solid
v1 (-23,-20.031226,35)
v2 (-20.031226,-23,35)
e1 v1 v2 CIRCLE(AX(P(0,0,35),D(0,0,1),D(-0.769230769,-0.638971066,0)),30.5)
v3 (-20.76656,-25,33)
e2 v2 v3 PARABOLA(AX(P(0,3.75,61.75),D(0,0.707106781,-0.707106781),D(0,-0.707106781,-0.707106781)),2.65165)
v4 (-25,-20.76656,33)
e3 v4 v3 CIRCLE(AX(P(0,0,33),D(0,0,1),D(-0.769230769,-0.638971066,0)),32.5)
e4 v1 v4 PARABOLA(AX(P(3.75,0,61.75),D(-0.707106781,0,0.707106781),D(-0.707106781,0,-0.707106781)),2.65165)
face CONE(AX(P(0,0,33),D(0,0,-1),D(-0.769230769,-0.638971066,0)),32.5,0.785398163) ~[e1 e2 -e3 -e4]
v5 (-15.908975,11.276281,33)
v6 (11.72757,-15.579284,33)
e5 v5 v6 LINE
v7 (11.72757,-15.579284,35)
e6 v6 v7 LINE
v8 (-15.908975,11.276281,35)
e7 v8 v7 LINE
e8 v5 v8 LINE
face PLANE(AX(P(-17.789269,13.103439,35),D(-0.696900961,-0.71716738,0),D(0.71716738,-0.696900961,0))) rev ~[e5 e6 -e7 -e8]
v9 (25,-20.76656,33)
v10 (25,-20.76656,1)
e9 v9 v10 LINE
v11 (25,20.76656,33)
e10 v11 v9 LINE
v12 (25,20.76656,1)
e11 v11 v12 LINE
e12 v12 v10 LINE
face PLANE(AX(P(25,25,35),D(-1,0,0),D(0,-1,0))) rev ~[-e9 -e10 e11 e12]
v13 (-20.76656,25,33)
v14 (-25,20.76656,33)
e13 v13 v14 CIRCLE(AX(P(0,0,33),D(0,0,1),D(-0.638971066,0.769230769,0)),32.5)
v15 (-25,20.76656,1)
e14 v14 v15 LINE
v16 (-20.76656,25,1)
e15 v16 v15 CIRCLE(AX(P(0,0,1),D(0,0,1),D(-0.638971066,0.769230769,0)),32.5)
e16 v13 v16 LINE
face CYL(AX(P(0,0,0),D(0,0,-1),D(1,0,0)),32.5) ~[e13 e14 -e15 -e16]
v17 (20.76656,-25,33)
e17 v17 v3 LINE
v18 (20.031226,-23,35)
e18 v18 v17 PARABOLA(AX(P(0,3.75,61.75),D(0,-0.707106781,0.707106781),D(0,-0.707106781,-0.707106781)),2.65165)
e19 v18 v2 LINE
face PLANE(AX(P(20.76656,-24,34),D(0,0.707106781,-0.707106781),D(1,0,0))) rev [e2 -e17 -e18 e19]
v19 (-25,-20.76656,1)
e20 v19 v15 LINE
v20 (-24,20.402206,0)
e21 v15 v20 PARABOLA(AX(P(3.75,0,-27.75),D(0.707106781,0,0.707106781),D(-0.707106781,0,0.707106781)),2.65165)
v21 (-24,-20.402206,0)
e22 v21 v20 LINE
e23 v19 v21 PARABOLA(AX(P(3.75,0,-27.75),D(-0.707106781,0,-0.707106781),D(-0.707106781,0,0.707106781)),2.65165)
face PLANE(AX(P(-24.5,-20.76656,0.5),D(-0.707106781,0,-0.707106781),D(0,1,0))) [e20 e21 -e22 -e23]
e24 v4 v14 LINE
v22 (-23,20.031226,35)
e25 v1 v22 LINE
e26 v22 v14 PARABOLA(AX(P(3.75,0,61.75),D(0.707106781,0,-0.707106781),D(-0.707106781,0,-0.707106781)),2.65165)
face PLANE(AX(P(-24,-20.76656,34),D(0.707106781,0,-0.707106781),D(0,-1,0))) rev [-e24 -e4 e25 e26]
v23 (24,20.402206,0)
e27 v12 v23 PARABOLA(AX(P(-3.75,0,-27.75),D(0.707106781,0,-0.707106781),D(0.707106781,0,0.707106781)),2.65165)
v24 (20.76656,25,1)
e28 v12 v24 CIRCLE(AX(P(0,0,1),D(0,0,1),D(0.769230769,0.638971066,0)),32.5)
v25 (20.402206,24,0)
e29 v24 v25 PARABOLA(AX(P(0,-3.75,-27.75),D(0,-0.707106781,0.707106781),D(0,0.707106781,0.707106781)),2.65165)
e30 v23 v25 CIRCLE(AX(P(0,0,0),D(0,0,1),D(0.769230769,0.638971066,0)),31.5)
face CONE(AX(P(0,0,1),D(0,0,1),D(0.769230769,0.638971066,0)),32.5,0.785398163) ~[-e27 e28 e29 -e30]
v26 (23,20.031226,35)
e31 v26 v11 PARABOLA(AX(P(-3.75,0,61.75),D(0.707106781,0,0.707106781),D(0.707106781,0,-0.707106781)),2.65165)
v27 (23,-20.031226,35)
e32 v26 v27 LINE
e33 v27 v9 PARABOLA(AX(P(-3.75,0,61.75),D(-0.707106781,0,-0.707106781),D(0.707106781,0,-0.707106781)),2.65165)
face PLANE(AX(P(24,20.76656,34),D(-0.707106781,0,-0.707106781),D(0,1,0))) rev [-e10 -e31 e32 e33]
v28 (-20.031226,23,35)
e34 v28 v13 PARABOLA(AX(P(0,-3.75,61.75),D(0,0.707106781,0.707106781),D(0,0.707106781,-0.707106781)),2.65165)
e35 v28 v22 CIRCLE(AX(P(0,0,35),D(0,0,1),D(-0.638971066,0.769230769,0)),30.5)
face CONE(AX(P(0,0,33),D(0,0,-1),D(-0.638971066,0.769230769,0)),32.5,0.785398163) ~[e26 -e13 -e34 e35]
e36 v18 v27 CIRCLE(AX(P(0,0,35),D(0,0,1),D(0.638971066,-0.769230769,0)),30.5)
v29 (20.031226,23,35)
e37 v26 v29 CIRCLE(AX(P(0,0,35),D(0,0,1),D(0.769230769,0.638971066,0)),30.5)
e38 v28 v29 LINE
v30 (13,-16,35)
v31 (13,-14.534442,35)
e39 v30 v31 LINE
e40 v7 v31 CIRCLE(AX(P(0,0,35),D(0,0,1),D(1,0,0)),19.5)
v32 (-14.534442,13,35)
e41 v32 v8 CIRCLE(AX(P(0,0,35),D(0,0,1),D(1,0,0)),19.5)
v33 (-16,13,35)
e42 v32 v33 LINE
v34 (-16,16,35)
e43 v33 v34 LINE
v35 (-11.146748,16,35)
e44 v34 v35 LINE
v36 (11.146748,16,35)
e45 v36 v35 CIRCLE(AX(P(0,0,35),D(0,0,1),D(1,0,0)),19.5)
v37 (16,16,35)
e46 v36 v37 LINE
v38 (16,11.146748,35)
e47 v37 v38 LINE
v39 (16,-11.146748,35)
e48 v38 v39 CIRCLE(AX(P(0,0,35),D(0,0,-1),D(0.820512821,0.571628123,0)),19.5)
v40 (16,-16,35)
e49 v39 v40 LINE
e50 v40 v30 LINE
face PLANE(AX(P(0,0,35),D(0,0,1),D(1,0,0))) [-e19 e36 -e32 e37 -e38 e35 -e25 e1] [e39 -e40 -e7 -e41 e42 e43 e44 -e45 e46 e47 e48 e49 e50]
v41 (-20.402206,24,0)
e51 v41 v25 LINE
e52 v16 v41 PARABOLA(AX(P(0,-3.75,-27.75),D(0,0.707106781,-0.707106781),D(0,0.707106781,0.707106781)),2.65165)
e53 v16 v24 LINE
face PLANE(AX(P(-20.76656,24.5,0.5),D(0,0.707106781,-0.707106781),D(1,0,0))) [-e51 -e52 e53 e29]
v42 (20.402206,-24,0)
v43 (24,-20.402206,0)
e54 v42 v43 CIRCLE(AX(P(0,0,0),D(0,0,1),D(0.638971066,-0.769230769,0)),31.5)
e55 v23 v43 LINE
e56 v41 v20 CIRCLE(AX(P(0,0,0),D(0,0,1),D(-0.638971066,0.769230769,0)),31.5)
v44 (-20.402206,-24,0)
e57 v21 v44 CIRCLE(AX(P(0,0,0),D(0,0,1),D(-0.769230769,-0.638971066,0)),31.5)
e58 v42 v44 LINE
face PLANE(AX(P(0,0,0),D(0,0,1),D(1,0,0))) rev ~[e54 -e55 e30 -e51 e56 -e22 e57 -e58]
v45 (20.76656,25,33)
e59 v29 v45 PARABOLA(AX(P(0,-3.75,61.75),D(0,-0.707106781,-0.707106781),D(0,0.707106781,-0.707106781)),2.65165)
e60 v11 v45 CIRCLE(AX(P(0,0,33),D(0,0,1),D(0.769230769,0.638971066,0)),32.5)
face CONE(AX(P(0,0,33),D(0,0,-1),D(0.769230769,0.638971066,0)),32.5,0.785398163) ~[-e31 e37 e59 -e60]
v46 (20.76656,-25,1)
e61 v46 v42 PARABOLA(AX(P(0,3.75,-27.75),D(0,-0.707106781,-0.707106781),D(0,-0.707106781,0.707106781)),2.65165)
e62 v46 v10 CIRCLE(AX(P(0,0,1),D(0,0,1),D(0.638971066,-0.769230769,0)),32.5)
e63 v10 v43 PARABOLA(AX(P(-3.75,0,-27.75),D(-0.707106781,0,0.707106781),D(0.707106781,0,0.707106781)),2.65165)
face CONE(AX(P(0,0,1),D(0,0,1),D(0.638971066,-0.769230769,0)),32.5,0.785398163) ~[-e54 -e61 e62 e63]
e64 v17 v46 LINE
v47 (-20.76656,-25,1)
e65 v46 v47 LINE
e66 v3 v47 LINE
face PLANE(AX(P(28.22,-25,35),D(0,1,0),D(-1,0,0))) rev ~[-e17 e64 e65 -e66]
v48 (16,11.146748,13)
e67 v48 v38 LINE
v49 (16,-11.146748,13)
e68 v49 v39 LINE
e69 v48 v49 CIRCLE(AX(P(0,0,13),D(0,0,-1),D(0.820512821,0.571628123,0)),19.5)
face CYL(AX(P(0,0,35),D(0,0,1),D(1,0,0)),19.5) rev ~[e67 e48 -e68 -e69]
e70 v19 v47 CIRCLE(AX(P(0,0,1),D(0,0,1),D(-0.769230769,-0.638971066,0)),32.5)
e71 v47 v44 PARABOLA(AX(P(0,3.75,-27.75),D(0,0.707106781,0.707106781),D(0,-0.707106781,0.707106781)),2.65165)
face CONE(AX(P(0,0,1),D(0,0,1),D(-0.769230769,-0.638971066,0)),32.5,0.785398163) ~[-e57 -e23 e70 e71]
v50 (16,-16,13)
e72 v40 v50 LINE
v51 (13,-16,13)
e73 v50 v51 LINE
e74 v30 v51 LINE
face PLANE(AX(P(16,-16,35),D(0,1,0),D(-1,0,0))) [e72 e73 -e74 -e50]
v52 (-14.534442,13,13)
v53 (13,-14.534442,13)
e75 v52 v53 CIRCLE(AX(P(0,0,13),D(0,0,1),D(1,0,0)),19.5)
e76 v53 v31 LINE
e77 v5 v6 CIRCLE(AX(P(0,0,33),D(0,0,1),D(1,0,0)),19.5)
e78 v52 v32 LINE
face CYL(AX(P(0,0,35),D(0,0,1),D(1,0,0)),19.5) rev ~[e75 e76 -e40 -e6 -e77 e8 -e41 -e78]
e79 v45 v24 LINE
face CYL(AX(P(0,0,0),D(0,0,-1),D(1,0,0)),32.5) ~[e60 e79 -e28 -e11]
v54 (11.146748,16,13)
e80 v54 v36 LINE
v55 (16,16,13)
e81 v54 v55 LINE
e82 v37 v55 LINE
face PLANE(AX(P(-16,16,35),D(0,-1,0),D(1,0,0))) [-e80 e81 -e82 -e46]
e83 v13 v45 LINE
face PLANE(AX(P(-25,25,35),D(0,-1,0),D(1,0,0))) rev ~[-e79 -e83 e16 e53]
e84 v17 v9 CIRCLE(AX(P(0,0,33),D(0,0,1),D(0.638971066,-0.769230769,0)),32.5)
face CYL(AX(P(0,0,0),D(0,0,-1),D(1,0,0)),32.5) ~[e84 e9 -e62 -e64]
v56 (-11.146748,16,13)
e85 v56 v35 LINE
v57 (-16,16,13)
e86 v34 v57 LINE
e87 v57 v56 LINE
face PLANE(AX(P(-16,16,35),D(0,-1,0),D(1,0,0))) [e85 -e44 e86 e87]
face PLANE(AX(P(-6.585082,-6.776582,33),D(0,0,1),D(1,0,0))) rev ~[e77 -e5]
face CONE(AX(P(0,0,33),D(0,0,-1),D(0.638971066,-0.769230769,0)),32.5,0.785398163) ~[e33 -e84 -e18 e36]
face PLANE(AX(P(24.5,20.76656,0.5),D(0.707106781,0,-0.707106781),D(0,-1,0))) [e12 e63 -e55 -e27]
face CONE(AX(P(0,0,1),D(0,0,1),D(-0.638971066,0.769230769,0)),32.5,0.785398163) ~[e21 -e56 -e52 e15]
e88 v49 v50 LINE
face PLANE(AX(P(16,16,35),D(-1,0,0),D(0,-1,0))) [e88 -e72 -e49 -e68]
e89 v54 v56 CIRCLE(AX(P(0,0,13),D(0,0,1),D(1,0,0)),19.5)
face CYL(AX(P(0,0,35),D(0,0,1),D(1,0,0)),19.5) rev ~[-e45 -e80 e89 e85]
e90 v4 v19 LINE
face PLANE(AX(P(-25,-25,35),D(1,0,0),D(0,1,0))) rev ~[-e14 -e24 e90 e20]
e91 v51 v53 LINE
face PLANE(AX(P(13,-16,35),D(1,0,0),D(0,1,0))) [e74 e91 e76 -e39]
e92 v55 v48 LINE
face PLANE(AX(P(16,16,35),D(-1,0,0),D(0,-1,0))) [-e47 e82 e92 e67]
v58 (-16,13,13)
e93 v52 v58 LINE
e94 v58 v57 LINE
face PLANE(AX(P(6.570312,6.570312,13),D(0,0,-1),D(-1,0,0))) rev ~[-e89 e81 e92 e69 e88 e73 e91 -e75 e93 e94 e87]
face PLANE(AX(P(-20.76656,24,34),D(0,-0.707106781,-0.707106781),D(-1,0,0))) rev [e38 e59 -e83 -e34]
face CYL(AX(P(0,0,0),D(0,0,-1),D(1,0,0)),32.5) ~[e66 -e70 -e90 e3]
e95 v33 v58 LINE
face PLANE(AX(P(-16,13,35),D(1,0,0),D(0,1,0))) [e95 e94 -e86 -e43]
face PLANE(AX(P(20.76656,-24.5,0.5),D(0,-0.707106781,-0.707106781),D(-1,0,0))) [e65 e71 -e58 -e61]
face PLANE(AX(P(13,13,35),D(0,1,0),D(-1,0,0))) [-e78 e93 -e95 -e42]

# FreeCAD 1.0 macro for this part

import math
import FreeCAD as App
import Part
import Sketcher
from FreeCAD import Vector


def edges_at(feature, points):
    """Names of the edges that pass closest to the given points."""
    edges = feature.Shape.Edges
    near = lambda p: min(range(len(edges)), key=lambda i: edges[i].distToShape(Part.Vertex(*p))[0])
    return sorted({f"Edge{near(p) + 1}" for p in points})

doc = App.newDocument("Part")
body = doc.addObject("PartDesign::Body", "Body")

sketch1 = body.newObject("Sketcher::SketchObject", "Sketch")
sketch1.AttachmentSupport = (doc.getObject("XY_Plane"), [""])
sketch1.MapMode = "FlatFace"
sketch1.addGeometry(Part.Circle(Vector(0, 0, 0), Vector(0, 0, 1), 32), False)
sketch1.addConstraint([
    Sketcher.Constraint("Coincident", 0, 3, -1, 1),
    Sketcher.Constraint("Diameter", 0, 65.0),
])
pad1 = body.newObject("PartDesign::Pad", "Pad")
pad1.Profile = sketch1
pad1.Length = 35

sketch2 = body.newObject("Sketcher::SketchObject", "Sketch001")
sketch2.AttachmentSupport = (doc.getObject("XY_Plane"), [""])
sketch2.MapMode = "FlatFace"
sketch2.AttachmentOffset = App.Placement(Vector(0, 0, 35), App.Rotation())
sketch2.addGeometry([
    Part.LineSegment(Vector(16, 16, 0), Vector(-16, 16, 0)),
    Part.LineSegment(Vector(-16, 16, 0), Vector(-16, 13, 0)),
    Part.LineSegment(Vector(-16, 13, 0), Vector(13, 13, 0)),
    Part.LineSegment(Vector(13, 13, 0), Vector(13, -16, 0)),
    Part.LineSegment(Vector(13, -16, 0), Vector(16, -16, 0)),
    Part.LineSegment(Vector(16, -16, 0), Vector(16, 16, 0)),
], False)
sketch2.addConstraint([
    Sketcher.Constraint("Coincident", 0, 2, 1, 1),
    Sketcher.Constraint("Coincident", 1, 2, 2, 1),
    Sketcher.Constraint("Coincident", 2, 2, 3, 1),
    Sketcher.Constraint("Coincident", 3, 2, 4, 1),
    Sketcher.Constraint("Coincident", 4, 2, 5, 1),
    Sketcher.Constraint("Coincident", 5, 2, 0, 1),
    Sketcher.Constraint("Horizontal", 0),
    Sketcher.Constraint("Vertical", 1),
    Sketcher.Constraint("Horizontal", 2),
    Sketcher.Constraint("Vertical", 3),
    Sketcher.Constraint("Horizontal", 4),
    Sketcher.Constraint("Vertical", 5),
    Sketcher.Constraint("Symmetric", 0, 2, 4, 2, -1, 1),
    Sketcher.Constraint("Equal", 4, 1),
    Sketcher.Constraint("Equal", 2, 3),
    Sketcher.Constraint("DistanceX", 0, 2, 0, 1, 32.0),
    Sketcher.Constraint("DistanceX", 2, 1, 2, 2, 29.0),
])
pocket1 = body.newObject("PartDesign::Pocket", "Pocket")
pocket1.Profile = sketch2
pocket1.Length = 22

sketch3 = body.newObject("Sketcher::SketchObject", "Sketch002")
sketch3.AttachmentSupport = (doc.getObject("XY_Plane"), [""])
sketch3.MapMode = "FlatFace"
sketch3.AttachmentOffset = App.Placement(Vector(0, 0, 35), App.Rotation())
sketch3.addGeometry(Part.Circle(Vector(0, 0, 0), Vector(0, 0, 1), 20), False)
sketch3.addConstraint([
    Sketcher.Constraint("Coincident", 0, 3, -1, 1),
    Sketcher.Constraint("Diameter", 0, 39.0),
])
pocket2 = body.newObject("PartDesign::Pocket", "Pocket001")
pocket2.Profile = sketch3
pocket2.Length = 22

sketch4 = body.newObject("Sketcher::SketchObject", "Sketch003")
sketch4.AttachmentSupport = (doc.getObject("XY_Plane"), [""])
sketch4.MapMode = "FlatFace"
sketch4.AttachmentOffset = App.Placement(Vector(0, 0, 35), App.Rotation())
sketch4.addGeometry([
    Part.LineSegment(Vector(25, 25, 0), Vector(25, -25, 0)),
    Part.LineSegment(Vector(25, -25, 0), Vector(67, -25, 0)),
    Part.LineSegment(Vector(67, -25, 0), Vector(72, 50, 0)),
    Part.LineSegment(Vector(72, 50, 0), Vector(-56, 50, 0)),
    Part.LineSegment(Vector(-56, 50, 0), Vector(-56, -44, 0)),
    Part.LineSegment(Vector(-56, -44, 0), Vector(22, -44, 0)),
    Part.LineSegment(Vector(22, -44, 0), Vector(28, -25, 0)),
    Part.LineSegment(Vector(28, -25, 0), Vector(-25, -25, 0)),
    Part.LineSegment(Vector(-25, -25, 0), Vector(-25, 25, 0)),
    Part.LineSegment(Vector(-25, 25, 0), Vector(25, 25, 0)),
], False)
sketch4.addConstraint([
    Sketcher.Constraint("Coincident", 0, 2, 1, 1),
    Sketcher.Constraint("Coincident", 1, 2, 2, 1),
    Sketcher.Constraint("Coincident", 2, 2, 3, 1),
    Sketcher.Constraint("Coincident", 3, 2, 4, 1),
    Sketcher.Constraint("Coincident", 4, 2, 5, 1),
    Sketcher.Constraint("Coincident", 5, 2, 6, 1),
    Sketcher.Constraint("Coincident", 6, 2, 7, 1),
    Sketcher.Constraint("Coincident", 7, 2, 8, 1),
    Sketcher.Constraint("Coincident", 8, 2, 9, 1),
    Sketcher.Constraint("Coincident", 9, 2, 0, 1),
    Sketcher.Constraint("Vertical", 0),
    Sketcher.Constraint("Horizontal", 1),
    Sketcher.Constraint("Horizontal", 3),
    Sketcher.Constraint("Vertical", 4),
    Sketcher.Constraint("Horizontal", 5),
    Sketcher.Constraint("Horizontal", 7),
    Sketcher.Constraint("Vertical", 8),
    Sketcher.Constraint("Horizontal", 9),
    Sketcher.Constraint("Symmetric", 0, 2, 8, 2, -1, 1),
    Sketcher.Constraint("Horizontal", 1, 2, 6, 2),
    Sketcher.Constraint("Equal", 9, 0),
    Sketcher.Constraint("DistanceX", 9, 1, 9, 2, 50.0),
    Sketcher.Constraint("DistanceX", 7, 2, 7, 1, 53.22),
    Sketcher.Constraint("DistanceX", 3, 2, 3, 1, 128.675392),
    Sketcher.Constraint("DistanceX", 5, 1, 5, 2, 78.434612),
    Sketcher.Constraint("DistanceX", 1, 1, 1, 2, 42.494446),
    Sketcher.Constraint("DistanceY", 4, 2, 4, 1, 94.159407),
    Sketcher.Constraint("DistanceY", -1, 1, 2, 2, 49.819519),
    Sketcher.Constraint("DistanceX", 3, 2, 1, 2, 123.82267),
])
pocket3 = body.newObject("PartDesign::Pocket", "Pocket002")
pocket3.Profile = sketch4
pocket3.Type = "ThroughAll"

sketch5 = body.newObject("Sketcher::SketchObject", "Sketch004")
sketch5.AttachmentSupport = (doc.getObject("XY_Plane"), [""])
sketch5.MapMode = "FlatFace"
sketch5.AttachmentOffset = App.Placement(Vector(0, 0, 35), App.Rotation())
sketch5.addGeometry([
    Part.ArcOfCircle(Part.Circle(Vector(0, 0, 0), Vector(0, 0, 1), 22), math.radians(144), math.radians(308)),
    Part.LineSegment(Vector(14, -17, 0), Vector(-18, 13, 0)),
], False)
sketch5.addConstraint([
    Sketcher.Constraint("Coincident", 0, 1, 1, 2),
    Sketcher.Constraint("Coincident", 1, 1, 0, 2),
    Sketcher.Constraint("Coincident", 0, 3, -1, 1),
    Sketcher.Constraint("Radius", 0, 22.094303),
    Sketcher.Constraint("DistanceX", 0, 1, -1, 1, 17.789269),
    Sketcher.Constraint("Distance", 1, 43.779366),
])
pad2 = body.newObject("PartDesign::Pad", "Pad001")
pad2.Profile = sketch5
pad2.Length = 2
pad2.Reversed = True
doc.recompute()

chamfer = body.newObject("PartDesign::Chamfer", "Chamfer")
chamfer.Base = (pad2, edges_at(pad2, [
    (0, -25, 35),
    (22.981, -22.981, 35),
    (25, 0, 35),
    (22.981, 22.981, 35),
    (0, 25, 35),
    (-22.981, 22.981, 35),
    (-25, 0, 35),
    (-22.981, -22.981, 35),
]))
chamfer.Size = 2
doc.recompute()

chamfer2 = body.newObject("PartDesign::Chamfer", "Chamfer001")
chamfer2.Base = (chamfer, edges_at(chamfer, [
    (25, 0, 0),
    (22.981, -22.981, 0),
    (0, -25, 0),
    (-22.981, -22.981, 0),
    (-25, 0, 0),
    (-22.981, 22.981, 0),
    (0, 25, 0),
    (22.981, 22.981, 0),
]))
chamfer2.Size = 1

doc.recompute()
